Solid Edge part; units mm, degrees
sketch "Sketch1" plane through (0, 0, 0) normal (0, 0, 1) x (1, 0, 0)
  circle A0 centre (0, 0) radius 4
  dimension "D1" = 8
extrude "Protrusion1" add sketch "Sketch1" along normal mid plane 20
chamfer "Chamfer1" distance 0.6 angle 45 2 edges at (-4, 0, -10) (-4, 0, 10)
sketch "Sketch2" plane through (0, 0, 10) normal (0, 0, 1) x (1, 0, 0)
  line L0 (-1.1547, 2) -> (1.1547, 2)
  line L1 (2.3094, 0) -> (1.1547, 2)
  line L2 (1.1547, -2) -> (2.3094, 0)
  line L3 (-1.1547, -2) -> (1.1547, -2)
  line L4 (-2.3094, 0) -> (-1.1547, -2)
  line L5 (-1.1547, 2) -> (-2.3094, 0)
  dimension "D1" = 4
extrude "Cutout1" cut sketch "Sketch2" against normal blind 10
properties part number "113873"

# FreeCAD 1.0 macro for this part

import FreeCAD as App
import Part
import Sketcher
from FreeCAD import Vector
Q = App.Units.Quantity


def edges_at(feature, points):
    """Names of the edges that pass closest to the given points."""
    edges = feature.Shape.Edges
    near = lambda p: min(range(len(edges)), key=lambda i: edges[i].distToShape(Part.Vertex(*p))[0])
    return sorted({f"Edge{near(p) + 1}" for p in points})


def add_polygon(sketch, points):
    """Adds a closed chain of lines whose ends are joined by coincident constraints."""
    first, n = sketch.GeometryCount, len(points)
    for a, b in zip(points, points[1:] + points[:1]):
        sketch.addGeometry(Part.LineSegment(App.Vector(*a, 0), App.Vector(*b, 0)), False)
    for i in range(n):
        sketch.addConstraint(Sketcher.Constraint("Coincident", first + i, 2, first + (i + 1) % n, 1))

doc = App.newDocument("Part")
params = doc.addObject("Spreadsheet::Sheet", "Params")
for row, (alias, value) in enumerate([
    ("sketch1_diameter", "8 mm"),
    ("pad1_length", "20 mm"),
    ("chamfer_size", "0.6 mm"),
    ("pocket1_length", "10 mm"),
], start=1):
    params.set(f"A{row}", alias)
    params.set(f"B{row}", "=" + value)
    params.setAlias(f"B{row}", alias)

body = doc.addObject("PartDesign::Body", "Body")

sketch1 = body.newObject("Sketcher::SketchObject", "Sketch")
sketch1.AttachmentSupport = (doc.getObject("XY_Plane"), [""])
sketch1.MapMode = "FlatFace"
sketch1.addGeometry(Part.Circle(Vector(0, 0, 0), Vector(0, 0, 1), 4), False)
sketch1.addConstraint(Sketcher.Constraint("Coincident", 0, 3, -1, 1))
sketch1.addConstraint(Sketcher.Constraint("Diameter", 0, Q("8 mm")))
sketch1.setExpression("Constraints[1]", "Params.sketch1_diameter")
pad1 = body.newObject("PartDesign::Pad", "Pad")
pad1.Profile = sketch1
pad1.setExpression("Length", "Params.pad1_length")
pad1.Midplane = True
doc.recompute()

chamfer = body.newObject("PartDesign::Chamfer", "Chamfer")
chamfer.Base = (pad1, edges_at(pad1, [(-4, 0, -10), (-4, 0, 10)]))
chamfer.setExpression("Size", "Params.chamfer_size")

sketch2 = body.newObject("Sketcher::SketchObject", "Sketch001")
sketch2.AttachmentSupport = (doc.getObject("XY_Plane"), [""])
sketch2.MapMode = "FlatFace"
sketch2.AttachmentOffset = App.Placement(Vector(0, 0, 10), App.Rotation())
add_polygon(sketch2, [(1.2, 2), (-1.2, 2), (-2.3, 0), (-1.2, -2), (1.2, -2), (2.3, 0)])
sketch2.addConstraint(Sketcher.Constraint("Horizontal", 0))
sketch2.addConstraint(Sketcher.Constraint("Horizontal", 3))
sketch2.addConstraint(Sketcher.Constraint("Symmetric", 0, 2, 3, 2, -1, 1))
sketch2.addConstraint(Sketcher.Constraint("Symmetric", 1, 2, 4, 2, -1, 1))
sketch2.addConstraint(Sketcher.Constraint("PointOnObject", 1, 2, -1))
sketch2.addConstraint(Sketcher.Constraint("Parallel", 2, 5))
sketch2.addConstraint(Sketcher.Constraint("Vertical", 0, 2, 2, 2))
sketch2.addConstraint(Sketcher.Constraint("Angle", 1, Q("-120 deg")))
sketch2.addConstraint(Sketcher.Constraint("DistanceY", -1, 1, 0, 2, Q("2 mm")))
sketch2.addConstraint(Sketcher.Constraint("DistanceX", 0, 2, 0, 1, Q("2.3094 mm")))
pocket1 = body.newObject("PartDesign::Pocket", "Pocket")
pocket1.Profile = sketch2
pocket1.setExpression("Length", "Params.pocket1_length")

doc.recompute()
